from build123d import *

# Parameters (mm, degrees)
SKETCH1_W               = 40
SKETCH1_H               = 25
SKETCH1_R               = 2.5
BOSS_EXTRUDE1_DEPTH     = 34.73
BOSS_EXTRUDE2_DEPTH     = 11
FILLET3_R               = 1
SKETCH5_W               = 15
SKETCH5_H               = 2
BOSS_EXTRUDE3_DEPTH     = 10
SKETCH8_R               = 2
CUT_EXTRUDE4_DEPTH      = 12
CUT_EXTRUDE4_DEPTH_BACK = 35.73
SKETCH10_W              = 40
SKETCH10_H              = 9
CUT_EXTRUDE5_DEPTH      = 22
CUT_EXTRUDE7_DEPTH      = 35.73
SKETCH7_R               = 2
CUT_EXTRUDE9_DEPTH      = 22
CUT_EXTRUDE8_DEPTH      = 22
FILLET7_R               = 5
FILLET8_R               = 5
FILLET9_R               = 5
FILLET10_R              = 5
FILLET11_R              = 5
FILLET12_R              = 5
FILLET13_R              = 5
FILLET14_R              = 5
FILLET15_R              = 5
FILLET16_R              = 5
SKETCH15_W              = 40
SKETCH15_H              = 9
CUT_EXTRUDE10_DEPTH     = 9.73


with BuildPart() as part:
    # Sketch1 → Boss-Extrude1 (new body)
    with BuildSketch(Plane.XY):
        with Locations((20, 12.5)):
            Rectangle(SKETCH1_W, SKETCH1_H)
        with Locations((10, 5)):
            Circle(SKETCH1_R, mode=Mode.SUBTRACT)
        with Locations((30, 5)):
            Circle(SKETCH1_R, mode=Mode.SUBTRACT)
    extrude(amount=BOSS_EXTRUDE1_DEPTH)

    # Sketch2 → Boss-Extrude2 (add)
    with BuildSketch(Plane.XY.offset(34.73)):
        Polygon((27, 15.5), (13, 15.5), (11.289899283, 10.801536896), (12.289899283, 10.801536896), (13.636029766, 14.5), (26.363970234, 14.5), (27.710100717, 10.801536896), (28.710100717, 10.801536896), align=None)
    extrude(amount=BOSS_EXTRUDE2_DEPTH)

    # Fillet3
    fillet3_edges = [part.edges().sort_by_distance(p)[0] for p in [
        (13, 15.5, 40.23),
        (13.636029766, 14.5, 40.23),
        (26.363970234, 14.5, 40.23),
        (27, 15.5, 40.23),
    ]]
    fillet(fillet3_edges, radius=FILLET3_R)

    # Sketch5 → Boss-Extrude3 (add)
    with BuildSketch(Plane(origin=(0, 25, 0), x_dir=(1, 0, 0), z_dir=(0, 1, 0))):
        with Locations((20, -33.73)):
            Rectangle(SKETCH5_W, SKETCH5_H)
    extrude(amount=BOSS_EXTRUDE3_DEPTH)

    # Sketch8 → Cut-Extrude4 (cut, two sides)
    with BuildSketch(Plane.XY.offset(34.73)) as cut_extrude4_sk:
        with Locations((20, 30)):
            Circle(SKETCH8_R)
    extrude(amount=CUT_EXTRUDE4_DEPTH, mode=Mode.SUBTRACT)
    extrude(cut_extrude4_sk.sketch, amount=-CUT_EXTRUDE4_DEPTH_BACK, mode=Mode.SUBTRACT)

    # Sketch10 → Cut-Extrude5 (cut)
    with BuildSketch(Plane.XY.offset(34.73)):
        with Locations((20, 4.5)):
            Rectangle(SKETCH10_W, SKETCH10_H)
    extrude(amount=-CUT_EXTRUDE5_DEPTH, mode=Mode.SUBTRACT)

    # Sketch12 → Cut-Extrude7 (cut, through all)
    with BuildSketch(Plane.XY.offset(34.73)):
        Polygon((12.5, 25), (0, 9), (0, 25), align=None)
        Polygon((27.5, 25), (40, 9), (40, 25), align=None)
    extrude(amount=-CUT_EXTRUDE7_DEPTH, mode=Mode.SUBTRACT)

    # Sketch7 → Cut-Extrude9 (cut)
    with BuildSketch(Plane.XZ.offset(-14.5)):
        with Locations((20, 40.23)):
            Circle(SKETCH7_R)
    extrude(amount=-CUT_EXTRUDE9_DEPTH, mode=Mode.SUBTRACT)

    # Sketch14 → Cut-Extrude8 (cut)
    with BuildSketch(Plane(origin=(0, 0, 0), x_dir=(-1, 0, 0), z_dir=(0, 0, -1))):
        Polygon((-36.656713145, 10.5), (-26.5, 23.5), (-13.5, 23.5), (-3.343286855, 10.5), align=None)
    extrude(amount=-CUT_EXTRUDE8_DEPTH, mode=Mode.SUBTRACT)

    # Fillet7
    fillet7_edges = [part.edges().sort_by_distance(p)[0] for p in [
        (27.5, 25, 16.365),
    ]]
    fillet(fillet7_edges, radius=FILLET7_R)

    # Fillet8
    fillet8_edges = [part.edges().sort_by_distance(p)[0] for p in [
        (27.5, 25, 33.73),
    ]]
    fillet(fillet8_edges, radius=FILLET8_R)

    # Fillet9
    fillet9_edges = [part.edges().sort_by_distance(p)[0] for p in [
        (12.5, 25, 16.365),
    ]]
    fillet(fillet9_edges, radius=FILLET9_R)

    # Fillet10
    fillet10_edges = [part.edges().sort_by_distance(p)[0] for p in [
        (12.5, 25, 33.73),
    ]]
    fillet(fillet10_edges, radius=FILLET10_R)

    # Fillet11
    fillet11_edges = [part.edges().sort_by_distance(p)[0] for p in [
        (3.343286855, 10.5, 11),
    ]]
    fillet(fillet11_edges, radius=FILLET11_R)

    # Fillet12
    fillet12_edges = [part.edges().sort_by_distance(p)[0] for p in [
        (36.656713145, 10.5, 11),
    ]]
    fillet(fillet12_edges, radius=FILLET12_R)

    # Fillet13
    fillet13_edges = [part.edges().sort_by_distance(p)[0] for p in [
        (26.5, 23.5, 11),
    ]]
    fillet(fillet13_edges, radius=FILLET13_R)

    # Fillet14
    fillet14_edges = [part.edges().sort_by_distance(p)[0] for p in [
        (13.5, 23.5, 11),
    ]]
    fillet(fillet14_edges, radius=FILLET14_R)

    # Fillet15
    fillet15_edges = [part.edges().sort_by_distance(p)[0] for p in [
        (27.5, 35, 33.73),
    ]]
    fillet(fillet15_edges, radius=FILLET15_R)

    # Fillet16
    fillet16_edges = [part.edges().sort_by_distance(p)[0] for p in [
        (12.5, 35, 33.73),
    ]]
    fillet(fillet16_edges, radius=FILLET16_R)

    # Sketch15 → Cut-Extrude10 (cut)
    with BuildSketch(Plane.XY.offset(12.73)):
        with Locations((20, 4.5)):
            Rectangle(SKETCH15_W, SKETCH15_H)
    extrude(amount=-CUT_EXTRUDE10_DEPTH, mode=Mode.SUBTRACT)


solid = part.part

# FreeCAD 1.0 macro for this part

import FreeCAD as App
import Part
import Sketcher

V = App.Vector
Q = App.Units.Quantity


def edges_at(feature, points):
    """Names of the edges that pass closest to the given points."""
    edges = feature.Shape.Edges
    near = lambda p: min(range(len(edges)), key=lambda i: edges[i].distToShape(Part.Vertex(*p))[0])
    return sorted({f"Edge{near(p) + 1}" for p in points})


def add_polygon(sketch, points):
    """Adds a closed chain of lines whose ends are joined by coincident constraints."""
    first, n = sketch.GeometryCount, len(points)
    for a, b in zip(points, points[1:] + points[:1]):
        sketch.addGeometry(Part.LineSegment(App.Vector(*a, 0), App.Vector(*b, 0)), False)
    for i in range(n):
        sketch.addConstraint(Sketcher.Constraint("Coincident", first + i, 2, first + (i + 1) % n, 1))

doc = App.newDocument("Part")
body = doc.addObject("PartDesign::Body", "Body")

sketch1 = doc.addObject("Sketcher::SketchObject", "Sketch")
body.addObject(sketch1)
sketch1.AttachmentSupport = (doc.XY_Plane, [""])
sketch1.MapMode = "FlatFace"
add_polygon(sketch1, [(0, 25), (0, 0), (40, 0), (40, 25)])
sketch1.addGeometry(Part.Circle(V(10, 5, 0), V(0, 0, 1), 2.5), False)
sketch1.addGeometry(Part.Circle(V(30, 5, 0), V(0, 0, 1), 2.5), False)
sketch1.addConstraint(Sketcher.Constraint("Vertical", 0))
sketch1.addConstraint(Sketcher.Constraint("Horizontal", 1))
sketch1.addConstraint(Sketcher.Constraint("Vertical", 2))
sketch1.addConstraint(Sketcher.Constraint("Horizontal", 3))
sketch1.addConstraint(Sketcher.Constraint("Coincident", 0, 2, -1, 1))
sketch1.addConstraint(Sketcher.Constraint("Equal", 4, 5))
sketch1.addConstraint(Sketcher.Constraint("Horizontal", 4, 3, 5, 3))
sketch1.addConstraint(Sketcher.Constraint("Diameter", 4, 5.0))
sketch1.addConstraint(Sketcher.Constraint("DistanceX", 1, 1, 1, 2, 40.0))
sketch1.addConstraint(Sketcher.Constraint("DistanceY", 0, 2, 0, 1, 25.0))
sketch1.addConstraint(Sketcher.Constraint("DistanceX", -1, 1, 4, 3, 10.0))
sketch1.addConstraint(Sketcher.Constraint("DistanceY", -1, 1, 4, 3, 5.0))
sketch1.addConstraint(Sketcher.Constraint("DistanceX", -1, 1, 5, 3, 30.0))
pad1 = doc.addObject("PartDesign::Pad", "Pad")
body.addObject(pad1)
pad1.Profile = sketch1
pad1.Length = 34.73

sketch2 = doc.addObject("Sketcher::SketchObject", "Sketch001")
body.addObject(sketch2)
sketch2.AttachmentSupport = (doc.XY_Plane, [""])
sketch2.MapMode = "FlatFace"
sketch2.AttachmentOffset = App.Placement(V(0, 0, 34.73), App.Rotation())
add_polygon(sketch2, [(27, 15.5), (13, 15.5), (11.289899, 10.801537), (12.289899, 10.801537), (13.63603, 14.5), (26.36397, 14.5), (27.710101, 10.801537), (28.710101, 10.801537)])
sketch2.addConstraint(Sketcher.Constraint("Horizontal", 0))
sketch2.addConstraint(Sketcher.Constraint("Horizontal", 2))
sketch2.addConstraint(Sketcher.Constraint("Horizontal", 4))
sketch2.addConstraint(Sketcher.Constraint("Horizontal", 6))
sketch2.addConstraint(Sketcher.Constraint("Parallel", 1, 3))
sketch2.addConstraint(Sketcher.Constraint("Parallel", 5, 7))
sketch2.addConstraint(Sketcher.Constraint("Horizontal", 2, 2, 5, 2))
sketch2.addConstraint(Sketcher.Constraint("Equal", 2, 6))
sketch2.addConstraint(Sketcher.Constraint("Equal", 3, 5))
sketch2.addConstraint(Sketcher.Constraint("DistanceX", 0, 2, 0, 1, 14.0))
sketch2.addConstraint(Sketcher.Constraint("DistanceX", 2, 1, 2, 2, 1.0))
sketch2.addConstraint(Sketcher.Constraint("Angle", 1, Q("-110 deg")))
sketch2.addConstraint(Sketcher.Constraint("Distance", 1, 5.0))
sketch2.addConstraint(Sketcher.Constraint("DistanceX", -1, 1, 0, 2, 13.0))
sketch2.addConstraint(Sketcher.Constraint("DistanceY", 3, 2, 0, 2, 1.0))
sketch2.addConstraint(Sketcher.Constraint("DistanceY", -1, 1, 0, 2, 15.5))
pad2 = doc.addObject("PartDesign::Pad", "Pad001")
body.addObject(pad2)
pad2.Profile = sketch2
pad2.Length = 11
doc.recompute()

fillet = doc.addObject("PartDesign::Fillet", "Fillet")
body.addObject(fillet)
fillet.Base = (pad2, edges_at(pad2, [
    (13, 15.5, 40.23),
    (13.636, 14.5, 40.23),
    (26.364, 14.5, 40.23),
    (27, 15.5, 40.23),
]))
fillet.Radius = 1

sketch3 = doc.addObject("Sketcher::SketchObject", "Sketch002")
body.addObject(sketch3)
sketch3.AttachmentSupport = (doc.XZ_Plane, [""])
sketch3.MapMode = "FlatFace"
sketch3.AttachmentOffset = App.Placement(V(0, 0, -25), App.Rotation())
add_polygon(sketch3, [(12.5, 32.73), (12.5, 34.73), (27.5, 34.73), (27.5, 32.73)])
sketch3.addConstraint(Sketcher.Constraint("Vertical", 0))
sketch3.addConstraint(Sketcher.Constraint("Horizontal", 1))
sketch3.addConstraint(Sketcher.Constraint("Vertical", 2))
sketch3.addConstraint(Sketcher.Constraint("Horizontal", 3))
sketch3.addConstraint(Sketcher.Constraint("DistanceX", 1, 1, 1, 2, 15.0))
sketch3.addConstraint(Sketcher.Constraint("DistanceY", 0, 1, 0, 2, 2.0))
sketch3.addConstraint(Sketcher.Constraint("DistanceX", -1, 1, 0, 2, 12.5))
sketch3.addConstraint(Sketcher.Constraint("DistanceY", -1, 1, 0, 2, 34.73))
pad3 = doc.addObject("PartDesign::Pad", "Pad002")
body.addObject(pad3)
pad3.Profile = sketch3
pad3.Length = 10
pad3.Reversed = True

sketch4 = doc.addObject("Sketcher::SketchObject", "Sketch003")
body.addObject(sketch4)
sketch4.AttachmentSupport = (doc.XY_Plane, [""])
sketch4.MapMode = "FlatFace"
sketch4.AttachmentOffset = App.Placement(V(0, 0, 34.73), App.Rotation())
sketch4.addGeometry(Part.Circle(V(20, 30, 0), V(0, 0, 1), 2), False)
sketch4.addConstraint(Sketcher.Constraint("Diameter", 0, 4.0))
sketch4.addConstraint(Sketcher.Constraint("DistanceX", -1, 1, 0, 3, 20.0))
sketch4.addConstraint(Sketcher.Constraint("DistanceY", -1, 1, 0, 3, 30.0))
pocket1 = doc.addObject("PartDesign::Pocket", "Pocket")
body.addObject(pocket1)
pocket1.Profile = sketch4
pocket1.Type = "ThroughAll"
pocket1.Midplane = True

sketch5 = doc.addObject("Sketcher::SketchObject", "Sketch004")
body.addObject(sketch5)
sketch5.AttachmentSupport = (doc.XY_Plane, [""])
sketch5.MapMode = "FlatFace"
sketch5.AttachmentOffset = App.Placement(V(0, 0, 34.73), App.Rotation())
add_polygon(sketch5, [(0, 9), (0, 0), (40, 0), (40, 9)])
sketch5.addConstraint(Sketcher.Constraint("Vertical", 0))
sketch5.addConstraint(Sketcher.Constraint("Horizontal", 1))
sketch5.addConstraint(Sketcher.Constraint("Vertical", 2))
sketch5.addConstraint(Sketcher.Constraint("Horizontal", 3))
sketch5.addConstraint(Sketcher.Constraint("Coincident", 0, 2, -1, 1))
sketch5.addConstraint(Sketcher.Constraint("DistanceX", 1, 1, 1, 2, 40.0))
sketch5.addConstraint(Sketcher.Constraint("DistanceY", 0, 2, 0, 1, 9.0))
pocket2 = doc.addObject("PartDesign::Pocket", "Pocket001")
body.addObject(pocket2)
pocket2.Profile = sketch5
pocket2.Length = 22

sketch6 = doc.addObject("Sketcher::SketchObject", "Sketch005")
body.addObject(sketch6)
sketch6.AttachmentSupport = (doc.XY_Plane, [""])
sketch6.MapMode = "FlatFace"
sketch6.AttachmentOffset = App.Placement(V(0, 0, 34.73), App.Rotation())
add_polygon(sketch6, [(0, 9), (12.5, 25), (0, 25)])
add_polygon(sketch6, [(27.5, 25), (40, 9), (40, 25)])
sketch6.addConstraint(Sketcher.Constraint("Horizontal", 1))
sketch6.addConstraint(Sketcher.Constraint("Vertical", 2))
sketch6.addConstraint(Sketcher.Constraint("Vertical", 4))
sketch6.addConstraint(Sketcher.Constraint("Horizontal", 5))
sketch6.addConstraint(Sketcher.Constraint("PointOnObject", 1, 2, -2))
sketch6.addConstraint(Sketcher.Constraint("Horizontal", 2, 2, 3, 2))
sketch6.addConstraint(Sketcher.Constraint("Horizontal", 1, 2, 4, 2))
sketch6.addConstraint(Sketcher.Constraint("Equal", 1, 5))
sketch6.addConstraint(Sketcher.Constraint("DistanceY", 2, 2, 2, 1, 16.0))
sketch6.addConstraint(Sketcher.Constraint("DistanceX", 1, 2, 1, 1, 12.5))
sketch6.addConstraint(Sketcher.Constraint("DistanceY", -1, 1, 0, 2, 25.0))
sketch6.addConstraint(Sketcher.Constraint("DistanceX", -1, 1, 3, 2, 40.0))
pocket3 = doc.addObject("PartDesign::Pocket", "Pocket002")
body.addObject(pocket3)
pocket3.Profile = sketch6
pocket3.Type = "ThroughAll"

sketch7 = doc.addObject("Sketcher::SketchObject", "Sketch006")
body.addObject(sketch7)
sketch7.AttachmentSupport = (doc.XZ_Plane, [""])
sketch7.MapMode = "FlatFace"
sketch7.AttachmentOffset = App.Placement(V(0, 0, -14.5), App.Rotation())
sketch7.addGeometry(Part.Circle(V(20, 40.23, 0), V(0, 0, 1), 2), False)
sketch7.addConstraint(Sketcher.Constraint("Diameter", 0, 4.0))
sketch7.addConstraint(Sketcher.Constraint("DistanceX", -1, 1, 0, 3, 20.0))
sketch7.addConstraint(Sketcher.Constraint("DistanceY", -1, 1, 0, 3, 40.23))
pocket4 = doc.addObject("PartDesign::Pocket", "Pocket003")
body.addObject(pocket4)
pocket4.Profile = sketch7
pocket4.Length = 22

sketch8 = doc.addObject("Sketcher::SketchObject", "Sketch007")
body.addObject(sketch8)
sketch8.AttachmentSupport = (doc.XY_Plane, [""])
sketch8.MapMode = "FlatFace"
add_polygon(sketch8, [(26.5, 23.5), (36.656713, 10.5), (3.343287, 10.5), (13.5, 23.5)])
sketch8.addConstraint(Sketcher.Constraint("Horizontal", 1))
sketch8.addConstraint(Sketcher.Constraint("Horizontal", 3))
sketch8.addConstraint(Sketcher.Constraint("Equal", 0, 2))
sketch8.addConstraint(Sketcher.Constraint("DistanceX", 3, 1, 3, 2, 13.0))
sketch8.addConstraint(Sketcher.Constraint("Angle", 0, Q("-52 deg")))
sketch8.addConstraint(Sketcher.Constraint("DistanceY", 1, 2, 2, 2, 13.0))
sketch8.addConstraint(Sketcher.Constraint("DistanceY", -1, 1, 0, 2, 10.5))
sketch8.addConstraint(Sketcher.Constraint("DistanceX", -1, 1, 2, 2, 13.5))
pocket5 = doc.addObject("PartDesign::Pocket", "Pocket004")
body.addObject(pocket5)
pocket5.Profile = sketch8
pocket5.Length = 22
pocket5.Reversed = True
doc.recompute()

fillet2 = doc.addObject("PartDesign::Fillet", "Fillet001")
body.addObject(fillet2)
fillet2.Base = (pocket5, edges_at(pocket5, [(27.5, 25, 16.365)]))
fillet2.Radius = 5
doc.recompute()

fillet3 = doc.addObject("PartDesign::Fillet", "Fillet002")
body.addObject(fillet3)
fillet3.Base = (fillet2, edges_at(fillet2, [(27.5, 25, 33.73)]))
fillet3.Radius = 5
doc.recompute()

fillet4 = doc.addObject("PartDesign::Fillet", "Fillet003")
body.addObject(fillet4)
fillet4.Base = (fillet3, edges_at(fillet3, [(12.5, 25, 16.365)]))
fillet4.Radius = 5
doc.recompute()

fillet5 = doc.addObject("PartDesign::Fillet", "Fillet004")
body.addObject(fillet5)
fillet5.Base = (fillet4, edges_at(fillet4, [(12.5, 25, 33.73)]))
fillet5.Radius = 5
doc.recompute()

fillet6 = doc.addObject("PartDesign::Fillet", "Fillet005")
body.addObject(fillet6)
fillet6.Base = (fillet5, edges_at(fillet5, [(3.343, 10.5, 11)]))
fillet6.Radius = 5
doc.recompute()

fillet7 = doc.addObject("PartDesign::Fillet", "Fillet006")
body.addObject(fillet7)
fillet7.Base = (fillet6, edges_at(fillet6, [(36.657, 10.5, 11)]))
fillet7.Radius = 5
doc.recompute()

fillet8 = doc.addObject("PartDesign::Fillet", "Fillet007")
body.addObject(fillet8)
fillet8.Base = (fillet7, edges_at(fillet7, [(26.5, 23.5, 11)]))
fillet8.Radius = 5
doc.recompute()

fillet9 = doc.addObject("PartDesign::Fillet", "Fillet008")
body.addObject(fillet9)
fillet9.Base = (fillet8, edges_at(fillet8, [(13.5, 23.5, 11)]))
fillet9.Radius = 5
doc.recompute()

fillet10 = doc.addObject("PartDesign::Fillet", "Fillet009")
body.addObject(fillet10)
fillet10.Base = (fillet9, edges_at(fillet9, [(27.5, 35, 33.73)]))
fillet10.Radius = 5
doc.recompute()

fillet11 = doc.addObject("PartDesign::Fillet", "Fillet010")
body.addObject(fillet11)
fillet11.Base = (fillet10, edges_at(fillet10, [(12.5, 35, 33.73)]))
fillet11.Radius = 5

sketch9 = doc.addObject("Sketcher::SketchObject", "Sketch008")
body.addObject(sketch9)
sketch9.AttachmentSupport = (doc.XY_Plane, [""])
sketch9.MapMode = "FlatFace"
sketch9.AttachmentOffset = App.Placement(V(0, 0, 12.73), App.Rotation())
add_polygon(sketch9, [(0, 9), (0, 0), (40, 0), (40, 9)])
sketch9.addConstraint(Sketcher.Constraint("Vertical", 0))
sketch9.addConstraint(Sketcher.Constraint("Horizontal", 1))
sketch9.addConstraint(Sketcher.Constraint("Vertical", 2))
sketch9.addConstraint(Sketcher.Constraint("Horizontal", 3))
sketch9.addConstraint(Sketcher.Constraint("Coincident", 0, 2, -1, 1))
sketch9.addConstraint(Sketcher.Constraint("DistanceX", 1, 1, 1, 2, 40.0))
sketch9.addConstraint(Sketcher.Constraint("DistanceY", 0, 2, 0, 1, 9.0))
pocket6 = doc.addObject("PartDesign::Pocket", "Pocket005")
body.addObject(pocket6)
pocket6.Profile = sketch9
pocket6.Length = 9.73

doc.recompute()
